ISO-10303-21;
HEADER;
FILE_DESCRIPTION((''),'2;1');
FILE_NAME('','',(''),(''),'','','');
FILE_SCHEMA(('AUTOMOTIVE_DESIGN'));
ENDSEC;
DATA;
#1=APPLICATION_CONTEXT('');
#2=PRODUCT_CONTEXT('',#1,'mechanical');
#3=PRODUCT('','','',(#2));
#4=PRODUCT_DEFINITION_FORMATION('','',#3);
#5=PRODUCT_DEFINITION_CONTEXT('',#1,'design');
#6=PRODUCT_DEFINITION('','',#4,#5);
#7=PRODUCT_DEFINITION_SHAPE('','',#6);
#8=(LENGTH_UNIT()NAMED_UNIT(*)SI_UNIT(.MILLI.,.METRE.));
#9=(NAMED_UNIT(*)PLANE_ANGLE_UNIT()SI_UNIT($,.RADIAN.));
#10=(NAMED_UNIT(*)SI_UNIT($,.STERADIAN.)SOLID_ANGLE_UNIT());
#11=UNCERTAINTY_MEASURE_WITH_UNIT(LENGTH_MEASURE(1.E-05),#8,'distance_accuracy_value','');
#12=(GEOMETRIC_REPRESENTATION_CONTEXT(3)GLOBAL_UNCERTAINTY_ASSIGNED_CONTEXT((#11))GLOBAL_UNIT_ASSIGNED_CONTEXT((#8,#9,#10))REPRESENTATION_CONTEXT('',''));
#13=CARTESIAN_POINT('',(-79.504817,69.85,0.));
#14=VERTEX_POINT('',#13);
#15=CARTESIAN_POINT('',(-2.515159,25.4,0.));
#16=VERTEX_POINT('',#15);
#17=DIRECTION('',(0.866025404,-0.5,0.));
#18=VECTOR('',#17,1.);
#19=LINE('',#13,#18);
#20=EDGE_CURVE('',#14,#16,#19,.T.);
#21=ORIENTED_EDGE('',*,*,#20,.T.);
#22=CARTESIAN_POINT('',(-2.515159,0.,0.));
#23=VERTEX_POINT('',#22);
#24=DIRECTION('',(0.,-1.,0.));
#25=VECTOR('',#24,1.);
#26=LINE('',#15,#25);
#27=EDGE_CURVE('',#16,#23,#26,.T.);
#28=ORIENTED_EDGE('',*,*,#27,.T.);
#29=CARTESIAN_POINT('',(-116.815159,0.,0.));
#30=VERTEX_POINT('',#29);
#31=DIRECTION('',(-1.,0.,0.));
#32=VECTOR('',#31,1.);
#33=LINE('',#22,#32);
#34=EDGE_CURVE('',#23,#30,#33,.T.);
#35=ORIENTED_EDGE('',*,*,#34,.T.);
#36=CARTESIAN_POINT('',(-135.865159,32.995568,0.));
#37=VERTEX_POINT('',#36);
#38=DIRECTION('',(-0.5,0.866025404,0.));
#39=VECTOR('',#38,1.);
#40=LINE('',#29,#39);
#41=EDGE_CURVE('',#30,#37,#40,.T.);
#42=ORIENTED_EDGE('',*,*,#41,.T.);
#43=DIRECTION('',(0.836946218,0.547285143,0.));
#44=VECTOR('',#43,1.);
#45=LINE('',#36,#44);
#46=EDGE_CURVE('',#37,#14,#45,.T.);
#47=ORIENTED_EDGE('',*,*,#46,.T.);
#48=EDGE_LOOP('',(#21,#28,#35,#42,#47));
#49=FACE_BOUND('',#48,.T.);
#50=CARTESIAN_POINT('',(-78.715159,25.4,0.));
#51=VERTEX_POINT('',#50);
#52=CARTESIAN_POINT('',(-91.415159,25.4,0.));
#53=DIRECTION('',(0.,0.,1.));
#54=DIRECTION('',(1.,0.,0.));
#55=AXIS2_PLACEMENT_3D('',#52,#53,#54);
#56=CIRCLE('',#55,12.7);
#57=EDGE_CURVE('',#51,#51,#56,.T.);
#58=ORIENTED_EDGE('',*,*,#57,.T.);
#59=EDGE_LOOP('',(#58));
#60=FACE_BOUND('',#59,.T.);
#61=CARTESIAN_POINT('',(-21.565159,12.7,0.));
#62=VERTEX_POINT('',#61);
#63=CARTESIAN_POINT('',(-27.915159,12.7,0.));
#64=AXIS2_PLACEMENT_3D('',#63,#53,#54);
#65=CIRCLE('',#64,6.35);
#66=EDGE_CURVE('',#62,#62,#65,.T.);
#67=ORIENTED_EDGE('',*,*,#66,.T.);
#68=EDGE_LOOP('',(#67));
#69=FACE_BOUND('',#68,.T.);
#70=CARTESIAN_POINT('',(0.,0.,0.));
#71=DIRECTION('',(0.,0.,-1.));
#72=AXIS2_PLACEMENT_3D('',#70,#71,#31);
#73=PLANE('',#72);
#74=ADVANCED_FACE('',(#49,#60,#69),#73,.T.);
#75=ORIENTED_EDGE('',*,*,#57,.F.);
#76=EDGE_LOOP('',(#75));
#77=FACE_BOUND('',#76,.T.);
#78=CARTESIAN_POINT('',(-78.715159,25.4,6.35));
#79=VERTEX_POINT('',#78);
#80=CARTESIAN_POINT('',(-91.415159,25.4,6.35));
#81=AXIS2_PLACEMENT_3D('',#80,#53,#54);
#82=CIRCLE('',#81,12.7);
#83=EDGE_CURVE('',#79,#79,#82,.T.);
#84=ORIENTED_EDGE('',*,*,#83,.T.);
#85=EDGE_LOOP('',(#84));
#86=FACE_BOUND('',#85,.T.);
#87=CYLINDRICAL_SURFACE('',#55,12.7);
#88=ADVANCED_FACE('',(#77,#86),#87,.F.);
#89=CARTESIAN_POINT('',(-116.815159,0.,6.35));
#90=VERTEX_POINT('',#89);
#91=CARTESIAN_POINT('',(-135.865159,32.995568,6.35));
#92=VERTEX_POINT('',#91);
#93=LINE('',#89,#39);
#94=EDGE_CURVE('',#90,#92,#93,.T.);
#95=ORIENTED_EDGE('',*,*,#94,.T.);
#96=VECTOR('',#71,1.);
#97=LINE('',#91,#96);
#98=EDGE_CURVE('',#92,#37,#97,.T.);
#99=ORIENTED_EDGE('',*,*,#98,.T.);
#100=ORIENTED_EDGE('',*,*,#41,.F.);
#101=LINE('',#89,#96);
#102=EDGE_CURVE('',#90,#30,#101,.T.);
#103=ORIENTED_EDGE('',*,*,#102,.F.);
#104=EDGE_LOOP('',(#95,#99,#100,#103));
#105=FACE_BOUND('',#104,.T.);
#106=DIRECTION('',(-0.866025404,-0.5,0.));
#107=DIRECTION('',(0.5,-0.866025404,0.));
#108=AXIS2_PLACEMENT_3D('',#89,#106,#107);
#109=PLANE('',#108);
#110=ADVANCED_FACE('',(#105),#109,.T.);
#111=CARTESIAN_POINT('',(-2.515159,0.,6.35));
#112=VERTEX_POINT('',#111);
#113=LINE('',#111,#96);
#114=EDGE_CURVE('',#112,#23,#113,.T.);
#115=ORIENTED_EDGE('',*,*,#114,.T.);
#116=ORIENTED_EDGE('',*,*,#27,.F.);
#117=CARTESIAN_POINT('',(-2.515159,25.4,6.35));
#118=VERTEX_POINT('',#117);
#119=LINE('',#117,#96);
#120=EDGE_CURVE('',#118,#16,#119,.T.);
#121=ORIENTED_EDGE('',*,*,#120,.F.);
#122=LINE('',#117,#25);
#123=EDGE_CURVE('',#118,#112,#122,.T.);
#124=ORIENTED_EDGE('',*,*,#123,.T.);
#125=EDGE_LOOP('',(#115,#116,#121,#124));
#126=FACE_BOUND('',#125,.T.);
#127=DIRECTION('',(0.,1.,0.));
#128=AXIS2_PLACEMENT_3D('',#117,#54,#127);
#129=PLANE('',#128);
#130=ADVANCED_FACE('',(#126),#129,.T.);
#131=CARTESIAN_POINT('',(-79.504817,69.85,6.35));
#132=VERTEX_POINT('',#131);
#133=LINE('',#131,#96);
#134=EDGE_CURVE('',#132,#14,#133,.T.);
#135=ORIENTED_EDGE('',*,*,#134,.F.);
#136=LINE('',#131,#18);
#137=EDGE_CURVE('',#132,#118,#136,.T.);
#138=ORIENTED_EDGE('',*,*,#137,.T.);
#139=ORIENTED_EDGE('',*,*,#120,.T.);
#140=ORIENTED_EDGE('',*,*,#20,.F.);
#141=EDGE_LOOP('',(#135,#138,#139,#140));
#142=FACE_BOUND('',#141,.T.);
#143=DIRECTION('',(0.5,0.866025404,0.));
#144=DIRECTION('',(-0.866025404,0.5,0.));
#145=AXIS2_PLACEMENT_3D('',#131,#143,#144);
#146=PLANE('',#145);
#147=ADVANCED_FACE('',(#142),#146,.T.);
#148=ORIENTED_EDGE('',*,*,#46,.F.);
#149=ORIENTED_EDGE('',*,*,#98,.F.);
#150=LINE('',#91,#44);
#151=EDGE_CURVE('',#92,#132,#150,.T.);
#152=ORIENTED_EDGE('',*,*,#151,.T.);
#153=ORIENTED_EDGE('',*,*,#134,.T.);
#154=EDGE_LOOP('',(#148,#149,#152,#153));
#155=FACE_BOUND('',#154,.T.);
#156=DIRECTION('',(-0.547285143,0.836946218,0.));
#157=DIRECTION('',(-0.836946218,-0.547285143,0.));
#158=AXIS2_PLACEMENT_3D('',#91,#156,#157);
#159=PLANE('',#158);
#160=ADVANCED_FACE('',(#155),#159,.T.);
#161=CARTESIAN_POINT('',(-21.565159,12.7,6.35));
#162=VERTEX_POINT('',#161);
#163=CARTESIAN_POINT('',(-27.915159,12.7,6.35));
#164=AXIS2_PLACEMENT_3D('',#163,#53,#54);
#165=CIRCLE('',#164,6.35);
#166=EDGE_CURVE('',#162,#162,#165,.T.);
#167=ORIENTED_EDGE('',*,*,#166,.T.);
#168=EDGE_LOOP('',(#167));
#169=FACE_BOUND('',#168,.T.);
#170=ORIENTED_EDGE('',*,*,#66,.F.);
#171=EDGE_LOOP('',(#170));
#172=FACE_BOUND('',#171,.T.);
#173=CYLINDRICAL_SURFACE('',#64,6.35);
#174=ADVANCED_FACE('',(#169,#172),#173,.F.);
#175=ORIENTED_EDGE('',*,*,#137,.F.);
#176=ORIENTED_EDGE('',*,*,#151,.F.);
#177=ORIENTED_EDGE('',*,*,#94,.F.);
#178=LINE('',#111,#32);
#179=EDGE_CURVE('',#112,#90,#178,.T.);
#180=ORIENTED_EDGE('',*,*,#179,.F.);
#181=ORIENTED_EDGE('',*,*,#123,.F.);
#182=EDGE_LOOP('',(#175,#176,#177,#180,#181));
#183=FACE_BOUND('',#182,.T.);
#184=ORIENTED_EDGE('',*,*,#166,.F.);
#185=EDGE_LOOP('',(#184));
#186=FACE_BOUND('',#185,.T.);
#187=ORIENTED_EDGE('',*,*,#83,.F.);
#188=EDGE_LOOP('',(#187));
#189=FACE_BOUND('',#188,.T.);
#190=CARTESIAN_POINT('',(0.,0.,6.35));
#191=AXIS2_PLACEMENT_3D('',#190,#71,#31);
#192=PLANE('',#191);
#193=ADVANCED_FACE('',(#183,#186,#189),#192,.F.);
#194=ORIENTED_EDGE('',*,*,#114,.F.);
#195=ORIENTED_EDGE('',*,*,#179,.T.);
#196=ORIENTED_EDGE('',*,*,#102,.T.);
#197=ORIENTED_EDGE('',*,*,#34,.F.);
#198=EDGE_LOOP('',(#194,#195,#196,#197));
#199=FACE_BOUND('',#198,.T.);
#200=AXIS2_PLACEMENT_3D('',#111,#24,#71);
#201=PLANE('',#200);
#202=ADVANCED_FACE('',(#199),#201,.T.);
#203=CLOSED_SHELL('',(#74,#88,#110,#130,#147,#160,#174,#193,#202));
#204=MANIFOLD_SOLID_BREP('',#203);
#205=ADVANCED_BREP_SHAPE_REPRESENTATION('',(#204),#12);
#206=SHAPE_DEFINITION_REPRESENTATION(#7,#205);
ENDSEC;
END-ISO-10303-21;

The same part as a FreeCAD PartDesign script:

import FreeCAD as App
import Part
import Sketcher
Q = App.Units.Quantity

doc = App.newDocument("Part")
body = doc.addObject("PartDesign::Body", "Body")

sketch1 = doc.addObject("Sketcher::SketchObject", "Sketch")
body.addObject(sketch1)
sketch1.AttachmentSupport = (doc.XY_Plane, [""])
sketch1.MapMode = "FlatFace"
sketch1.addGeometry(Part.LineSegment(App.Vector(-3, 25, 0), App.Vector(-80, 70, 0)), False)
sketch1.addGeometry(Part.LineSegment(App.Vector(-80, 70, 0), App.Vector(-136, 33, 0)), False)
sketch1.addGeometry(Part.LineSegment(App.Vector(-136, 33, 0), App.Vector(-117, 0, 0)), False)
sketch1.addGeometry(Part.LineSegment(App.Vector(-117, 0, 0), App.Vector(-3, 0, 0)), False)
sketch1.addGeometry(Part.LineSegment(App.Vector(-3, 0, 0), App.Vector(-3, 25, 0)), False)
sketch1.addConstraint(Sketcher.Constraint("Coincident", 0, 2, 1, 1))
sketch1.addConstraint(Sketcher.Constraint("Coincident", 1, 2, 2, 1))
sketch1.addConstraint(Sketcher.Constraint("Coincident", 2, 2, 3, 1))
sketch1.addConstraint(Sketcher.Constraint("Coincident", 3, 2, 4, 1))
sketch1.addConstraint(Sketcher.Constraint("Coincident", 4, 2, 0, 1))
sketch1.addConstraint(Sketcher.Constraint("Horizontal", 3))
sketch1.addConstraint(Sketcher.Constraint("Vertical", 4))
sketch1.addConstraint(Sketcher.Constraint("PointOnObject", 2, 2, -1))
sketch1.addConstraint(Sketcher.Constraint("DistanceY", 4, 1, 4, 2, Q("1 in")))
sketch1.addConstraint(Sketcher.Constraint("DistanceX", 3, 1, 3, 2, Q("4.5 in")))
sketch1.addConstraint(Sketcher.Constraint("Angle", 0, Q("150 deg")))
sketch1.addConstraint(Sketcher.Constraint("Angle", 2, Q("-60 deg")))
sketch1.addConstraint(Sketcher.Constraint("Distance", 0, Q("3.5 in")))
sketch1.addConstraint(Sketcher.Constraint("Distance", 2, Q("1.5 in")))
sketch1.addConstraint(Sketcher.Constraint("DistanceX", 1, 2, -1, 1, Q("135.865159 mm")))
pad1 = doc.addObject("PartDesign::Pad", "Pad")
body.addObject(pad1)
pad1.Profile = sketch1
pad1.Length = Q("0.25 in")

sketch2 = doc.addObject("Sketcher::SketchObject", "Sketch001")
body.addObject(sketch2)
sketch2.AttachmentSupport = (doc.XY_Plane, [""])
sketch2.MapMode = "FlatFace"
sketch2.AttachmentOffset = App.Placement(App.Vector(0, 0, 0.25 * 25.4), App.Rotation())
sketch2.addGeometry(Part.Circle(App.Vector(-91, 25, 0), App.Vector(0, 0, 1), 13), False)
sketch2.addGeometry(Part.Circle(App.Vector(-28, 13, 0), App.Vector(0, 0, 1), 6), False)
sketch2.addConstraint(Sketcher.Constraint("Diameter", 0, Q("1 in")))
sketch2.addConstraint(Sketcher.Constraint("Diameter", 1, Q("0.5 in")))
sketch2.addConstraint(Sketcher.Constraint("DistanceY", -1, 1, 0, 3, Q("1 in")))
sketch2.addConstraint(Sketcher.Constraint("DistanceY", -1, 1, 1, 3, Q("0.5 in")))
sketch2.addConstraint(Sketcher.Constraint("DistanceX", 0, 3, 1, 3, Q("2.5 in")))
sketch2.addConstraint(Sketcher.Constraint("DistanceX", 0, 3, -1, 1, Q("91.415159 mm")))
pocket1 = doc.addObject("PartDesign::Pocket", "Pocket")
body.addObject(pocket1)
pocket1.Profile = sketch2
pocket1.Type = "ThroughAll"

doc.recompute()
